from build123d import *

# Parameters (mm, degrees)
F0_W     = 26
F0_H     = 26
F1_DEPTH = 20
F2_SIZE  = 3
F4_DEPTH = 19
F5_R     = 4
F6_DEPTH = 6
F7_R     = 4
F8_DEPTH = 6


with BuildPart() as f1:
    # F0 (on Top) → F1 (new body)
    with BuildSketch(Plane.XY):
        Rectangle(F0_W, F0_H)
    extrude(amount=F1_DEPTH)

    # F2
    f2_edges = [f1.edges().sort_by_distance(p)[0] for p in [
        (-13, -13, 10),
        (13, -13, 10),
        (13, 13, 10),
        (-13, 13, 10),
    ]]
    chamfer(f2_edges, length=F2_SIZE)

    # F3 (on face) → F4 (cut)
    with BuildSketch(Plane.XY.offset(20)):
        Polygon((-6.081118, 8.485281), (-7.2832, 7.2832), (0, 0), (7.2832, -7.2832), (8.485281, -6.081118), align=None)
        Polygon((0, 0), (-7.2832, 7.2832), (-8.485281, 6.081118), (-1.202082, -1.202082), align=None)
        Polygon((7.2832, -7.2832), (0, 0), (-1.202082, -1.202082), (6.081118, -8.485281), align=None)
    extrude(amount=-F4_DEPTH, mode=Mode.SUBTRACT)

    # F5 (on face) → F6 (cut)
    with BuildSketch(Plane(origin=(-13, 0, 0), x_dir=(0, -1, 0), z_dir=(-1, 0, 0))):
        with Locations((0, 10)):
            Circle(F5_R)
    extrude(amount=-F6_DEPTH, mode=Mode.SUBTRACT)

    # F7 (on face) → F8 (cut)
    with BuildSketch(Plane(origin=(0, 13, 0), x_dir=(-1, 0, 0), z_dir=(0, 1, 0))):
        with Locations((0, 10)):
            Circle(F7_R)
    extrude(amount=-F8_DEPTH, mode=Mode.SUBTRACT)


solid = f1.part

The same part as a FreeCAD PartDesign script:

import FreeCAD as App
import Part
import Sketcher

V = App.Vector
Q = App.Units.Quantity


def edges_at(feature, points):
    """Names of the edges that pass closest to the given points."""
    edges = feature.Shape.Edges
    near = lambda p: min(range(len(edges)), key=lambda i: edges[i].distToShape(Part.Vertex(*p))[0])
    return sorted({f"Edge{near(p) + 1}" for p in points})


def add_polygon(sketch, points):
    """Adds a closed chain of lines whose ends are joined by coincident constraints."""
    first, n = sketch.GeometryCount, len(points)
    for a, b in zip(points, points[1:] + points[:1]):
        sketch.addGeometry(Part.LineSegment(App.Vector(*a, 0), App.Vector(*b, 0)), False)
    for i in range(n):
        sketch.addConstraint(Sketcher.Constraint("Coincident", first + i, 2, first + (i + 1) % n, 1))

doc = App.newDocument("Part")
params = doc.addObject("Spreadsheet::Sheet", "Params")
for row, (alias, value) in enumerate([
    ("sketch1_width", "26 mm"),
    ("pad1_length", "20 mm"),
    ("chamfer_size", "3 mm"),
    ("sketch2_length", "1.7 mm"),
    ("sketch2_length2", "10.3 mm"),
    ("pocket1_length", "19 mm"),
    ("sketch3_diameter", "8 mm"),
    ("pocket2_length", "6 mm"),
    ("sketch4_diameter", "8 mm"),
    ("pocket3_length", "6 mm"),
], start=1):
    params.set(f"A{row}", alias)
    params.set(f"B{row}", "=" + value)
    params.setAlias(f"B{row}", alias)

body = doc.addObject("PartDesign::Body", "Body")

# Sketch on XY plane
sketch1 = body.newObject("Sketcher::SketchObject", "Sketch")
sketch1.AttachmentSupport = (doc.getObject("XY_Plane"), [""])
sketch1.MapMode = "FlatFace"
add_polygon(sketch1, [(-13, 13), (-13, -13), (13, -13), (13, 13)])  # lines 0-3
sketch1.addConstraint([
    Sketcher.Constraint("Vertical", 0),
    Sketcher.Constraint("Horizontal", 1),
    Sketcher.Constraint("Vertical", 2),
    Sketcher.Constraint("Horizontal", 3),
    Sketcher.Constraint("Symmetric", 0, 2, 2, 2, -1, 1),
    Sketcher.Constraint("Equal", 3, 0),
    Sketcher.Constraint("DistanceX", 1, 1, 1, 2, 26.0),
])
sketch1.setExpression("Constraints[10]", "Params.sketch1_width")
pad1 = body.newObject("PartDesign::Pad", "Pad")
pad1.Profile = sketch1
pad1.setExpression("Length", "Params.pad1_length")
doc.recompute()

chamfer = body.newObject("PartDesign::Chamfer", "Chamfer")
chamfer.Base = (pad1, edges_at(pad1, [
    (-13, -13, 10),
    (13, -13, 10),
    (13, 13, 10),
    (-13, 13, 10),
]))
chamfer.setExpression("Size", "Params.chamfer_size")

# Sketch on XY plane
sketch2 = body.newObject("Sketcher::SketchObject", "Sketch001")
sketch2.AttachmentSupport = (doc.getObject("XY_Plane"), [""])
sketch2.MapMode = "FlatFace"
sketch2.AttachmentOffset = App.Placement(V(0, 0, 20), App.Rotation())
add_polygon(sketch2, [(-6.1, 8.5), (-7.3, 7.3), (-8.5, 6.1), (-1.2, -1.2), (6.1, -8.5), (7.3, -7.3), (8.5, -6.1)])  # lines 0-6
sketch2.addConstraint([
    Sketcher.Constraint("Symmetric", 0, 2, 4, 2, -1, 1),
    Sketcher.Constraint("Symmetric", 1, 2, 5, 2, -1, 1),
    Sketcher.Constraint("Symmetric", 3, 2, 6, 2, -1, 1),
    Sketcher.Constraint("Parallel", 0, 1),
    Sketcher.Constraint("Perpendicular", 1, 2),
    Sketcher.Constraint("Parallel", 2, 3),
    Sketcher.Constraint("Equal", 0, 1),
    Sketcher.Constraint("Equal", 2, 3),
    Sketcher.Constraint("Angle", 2, Q("-45.000004 deg")),
    Sketcher.Constraint("Distance", 0, 1.7),
    Sketcher.Constraint("Distance", 2, 10.3),
])
sketch2.setExpression("Constraints[16]", "Params.sketch2_length")
sketch2.setExpression("Constraints[17]", "Params.sketch2_length2")
pocket1 = body.newObject("PartDesign::Pocket", "Pocket")
pocket1.Profile = sketch2
pocket1.setExpression("Length", "Params.pocket1_length")

# Sketch on YZ plane
sketch3 = body.newObject("Sketcher::SketchObject", "Sketch002")
sketch3.AttachmentSupport = (doc.getObject("YZ_Plane"), [""])
sketch3.MapMode = "FlatFace"
sketch3.AttachmentOffset = App.Placement(V(0, 0, -13), App.Rotation())
sketch3.addGeometry(Part.Circle(V(0, 10, 0), V(0, 0, 1), 4), False)
sketch3.addConstraint([
    Sketcher.Constraint("PointOnObject", 0, 3, -2),
    Sketcher.Constraint("Diameter", 0, 8.0),
    Sketcher.Constraint("DistanceY", -1, 1, 0, 3, 10.0),
])
sketch3.setExpression("Constraints[1]", "Params.sketch3_diameter")
pocket2 = body.newObject("PartDesign::Pocket", "Pocket001")
pocket2.Profile = sketch3
pocket2.setExpression("Length", "Params.pocket2_length")
pocket2.Reversed = True

# Sketch on XZ plane
sketch4 = body.newObject("Sketcher::SketchObject", "Sketch003")
sketch4.AttachmentSupport = (doc.getObject("XZ_Plane"), [""])
sketch4.MapMode = "FlatFace"
sketch4.AttachmentOffset = App.Placement(V(0, 0, -13), App.Rotation())
sketch4.addGeometry(Part.Circle(V(0, 10, 0), V(0, 0, 1), 4), False)
sketch4.addConstraint([
    Sketcher.Constraint("PointOnObject", 0, 3, -2),
    Sketcher.Constraint("Diameter", 0, 8.0),
    Sketcher.Constraint("DistanceY", -1, 1, 0, 3, 10.0),
])
sketch4.setExpression("Constraints[1]", "Params.sketch4_diameter")
pocket3 = body.newObject("PartDesign::Pocket", "Pocket002")
pocket3.Profile = sketch4
pocket3.setExpression("Length", "Params.pocket3_length")
pocket3.Reversed = True

doc.recompute()
